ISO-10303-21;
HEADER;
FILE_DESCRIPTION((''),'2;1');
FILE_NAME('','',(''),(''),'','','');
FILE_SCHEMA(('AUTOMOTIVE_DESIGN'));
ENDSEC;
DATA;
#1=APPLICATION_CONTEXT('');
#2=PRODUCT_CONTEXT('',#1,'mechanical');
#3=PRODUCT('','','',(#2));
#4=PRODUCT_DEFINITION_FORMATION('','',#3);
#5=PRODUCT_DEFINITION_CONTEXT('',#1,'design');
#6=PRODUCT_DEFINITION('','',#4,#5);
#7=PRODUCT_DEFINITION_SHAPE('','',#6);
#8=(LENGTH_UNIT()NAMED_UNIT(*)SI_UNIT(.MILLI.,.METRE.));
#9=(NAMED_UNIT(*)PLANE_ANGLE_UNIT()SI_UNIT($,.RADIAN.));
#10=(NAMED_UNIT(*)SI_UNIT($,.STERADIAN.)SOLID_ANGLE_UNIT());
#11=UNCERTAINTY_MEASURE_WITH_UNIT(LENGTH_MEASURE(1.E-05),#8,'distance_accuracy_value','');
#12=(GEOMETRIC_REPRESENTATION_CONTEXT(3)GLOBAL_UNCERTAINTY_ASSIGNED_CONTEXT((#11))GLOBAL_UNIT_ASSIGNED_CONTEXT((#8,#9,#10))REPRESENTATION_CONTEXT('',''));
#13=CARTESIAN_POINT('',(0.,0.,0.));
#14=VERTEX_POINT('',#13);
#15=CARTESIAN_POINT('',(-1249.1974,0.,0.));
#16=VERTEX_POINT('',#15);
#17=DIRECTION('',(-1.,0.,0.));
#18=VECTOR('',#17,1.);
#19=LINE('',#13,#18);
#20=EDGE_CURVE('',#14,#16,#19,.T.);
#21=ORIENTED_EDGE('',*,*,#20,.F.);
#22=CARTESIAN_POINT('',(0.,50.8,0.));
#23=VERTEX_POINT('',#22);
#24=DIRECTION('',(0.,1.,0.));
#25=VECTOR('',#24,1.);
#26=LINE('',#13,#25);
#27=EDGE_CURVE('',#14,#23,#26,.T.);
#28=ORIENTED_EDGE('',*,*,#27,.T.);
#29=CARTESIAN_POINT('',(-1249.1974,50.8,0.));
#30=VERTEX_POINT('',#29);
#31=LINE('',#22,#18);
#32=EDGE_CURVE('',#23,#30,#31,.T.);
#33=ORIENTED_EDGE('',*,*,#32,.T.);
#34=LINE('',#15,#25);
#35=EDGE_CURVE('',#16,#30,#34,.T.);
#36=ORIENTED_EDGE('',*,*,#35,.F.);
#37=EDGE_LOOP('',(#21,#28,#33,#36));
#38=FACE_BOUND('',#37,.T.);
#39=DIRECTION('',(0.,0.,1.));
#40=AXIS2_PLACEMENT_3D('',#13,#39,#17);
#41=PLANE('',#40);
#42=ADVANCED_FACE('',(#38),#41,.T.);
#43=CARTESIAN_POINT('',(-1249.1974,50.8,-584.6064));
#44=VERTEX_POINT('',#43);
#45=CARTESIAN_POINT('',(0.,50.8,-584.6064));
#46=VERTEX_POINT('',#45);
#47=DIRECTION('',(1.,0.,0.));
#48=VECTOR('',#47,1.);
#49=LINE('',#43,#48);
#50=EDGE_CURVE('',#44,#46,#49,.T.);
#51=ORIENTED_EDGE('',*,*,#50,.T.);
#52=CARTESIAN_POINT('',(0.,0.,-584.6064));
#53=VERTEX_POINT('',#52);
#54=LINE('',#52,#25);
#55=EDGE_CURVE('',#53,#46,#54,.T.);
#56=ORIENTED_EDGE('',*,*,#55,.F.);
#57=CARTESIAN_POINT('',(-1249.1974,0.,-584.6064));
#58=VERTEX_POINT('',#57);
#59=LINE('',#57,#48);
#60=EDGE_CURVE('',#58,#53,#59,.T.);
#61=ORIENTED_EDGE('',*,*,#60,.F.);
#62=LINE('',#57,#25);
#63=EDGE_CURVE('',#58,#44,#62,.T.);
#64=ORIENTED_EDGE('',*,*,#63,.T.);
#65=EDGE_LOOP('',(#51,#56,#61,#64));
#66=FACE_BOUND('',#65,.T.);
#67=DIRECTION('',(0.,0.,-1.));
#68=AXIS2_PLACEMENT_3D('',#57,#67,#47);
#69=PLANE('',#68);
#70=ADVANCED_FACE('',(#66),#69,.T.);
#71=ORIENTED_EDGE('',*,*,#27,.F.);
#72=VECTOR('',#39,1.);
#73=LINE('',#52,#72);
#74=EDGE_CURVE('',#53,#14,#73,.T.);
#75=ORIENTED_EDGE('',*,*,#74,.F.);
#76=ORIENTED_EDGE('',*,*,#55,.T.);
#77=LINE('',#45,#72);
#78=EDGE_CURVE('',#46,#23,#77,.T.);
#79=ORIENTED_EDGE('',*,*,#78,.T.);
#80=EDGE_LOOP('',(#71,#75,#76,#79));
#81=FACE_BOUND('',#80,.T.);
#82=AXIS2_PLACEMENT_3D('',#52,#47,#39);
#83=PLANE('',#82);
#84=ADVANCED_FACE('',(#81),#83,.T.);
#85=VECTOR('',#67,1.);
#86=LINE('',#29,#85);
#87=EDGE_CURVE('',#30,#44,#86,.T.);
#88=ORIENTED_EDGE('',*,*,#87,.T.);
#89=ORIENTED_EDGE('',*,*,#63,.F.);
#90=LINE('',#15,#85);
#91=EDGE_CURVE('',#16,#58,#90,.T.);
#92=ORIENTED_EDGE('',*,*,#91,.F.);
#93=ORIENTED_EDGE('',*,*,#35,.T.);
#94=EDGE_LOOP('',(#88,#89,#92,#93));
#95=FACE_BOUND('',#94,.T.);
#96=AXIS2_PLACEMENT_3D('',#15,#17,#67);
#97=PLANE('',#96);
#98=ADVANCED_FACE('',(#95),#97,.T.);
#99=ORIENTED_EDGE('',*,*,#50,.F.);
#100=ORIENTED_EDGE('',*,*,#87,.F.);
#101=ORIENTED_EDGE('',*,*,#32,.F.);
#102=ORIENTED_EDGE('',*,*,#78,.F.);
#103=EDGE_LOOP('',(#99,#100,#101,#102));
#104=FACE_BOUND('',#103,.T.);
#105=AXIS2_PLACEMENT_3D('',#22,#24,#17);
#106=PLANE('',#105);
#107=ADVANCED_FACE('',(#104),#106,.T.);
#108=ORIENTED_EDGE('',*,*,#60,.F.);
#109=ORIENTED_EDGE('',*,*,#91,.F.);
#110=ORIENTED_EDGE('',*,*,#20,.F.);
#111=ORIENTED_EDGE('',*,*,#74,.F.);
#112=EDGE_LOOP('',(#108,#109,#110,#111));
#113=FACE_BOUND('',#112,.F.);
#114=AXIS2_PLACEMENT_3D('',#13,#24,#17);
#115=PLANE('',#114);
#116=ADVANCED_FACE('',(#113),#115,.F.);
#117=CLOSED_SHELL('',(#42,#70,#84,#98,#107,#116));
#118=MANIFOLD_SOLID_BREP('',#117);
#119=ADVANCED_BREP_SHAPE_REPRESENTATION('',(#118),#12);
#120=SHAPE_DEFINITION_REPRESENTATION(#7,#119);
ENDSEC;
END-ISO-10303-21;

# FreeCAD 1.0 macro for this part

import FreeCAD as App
import Part
import Sketcher

V = App.Vector
Q = App.Units.Quantity


def add_polygon(sketch, points):
    """Adds a closed chain of lines whose ends are joined by coincident constraints."""
    first, n = sketch.GeometryCount, len(points)
    for a, b in zip(points, points[1:] + points[:1]):
        sketch.addGeometry(Part.LineSegment(App.Vector(*a, 0), App.Vector(*b, 0)), False)
    for i in range(n):
        sketch.addConstraint(Sketcher.Constraint("Coincident", first + i, 2, first + (i + 1) % n, 1))

doc = App.newDocument("Part")
params = doc.addObject("Spreadsheet::Sheet", "Params")
for row, (alias, value) in enumerate([
    ("sketch1_width", "49.181 in"),
    ("sketch1_height", "23.016 in"),
    ("pad1_length", "2 in"),
], start=1):
    params.set(f"A{row}", alias)
    params.set(f"B{row}", "=" + value)
    params.setAlias(f"B{row}", alias)

body = doc.addObject("PartDesign::Body", "Body")

# Sketch on XZ plane
sketch1 = body.newObject("Sketcher::SketchObject", "Sketch")
sketch1.AttachmentSupport = (doc.getObject("XZ_Plane"), [""])
sketch1.MapMode = "FlatFace"
add_polygon(sketch1, [(-1249, 0), (0, 0), (0, -585), (-1249, -585)])  # lines 0-3
sketch1.addConstraint(Sketcher.Constraint("Horizontal", 0))
sketch1.addConstraint(Sketcher.Constraint("Vertical", 1))
sketch1.addConstraint(Sketcher.Constraint("Horizontal", 2))
sketch1.addConstraint(Sketcher.Constraint("Vertical", 3))
sketch1.addConstraint(Sketcher.Constraint("Coincident", 0, 2, -1, 1))
sketch1.addConstraint(Sketcher.Constraint("DistanceX", 0, 1, 0, 2, Q("49.181 in")))
sketch1.addConstraint(Sketcher.Constraint("DistanceY", 1, 2, 1, 1, Q("23.016 in")))
sketch1.setExpression("Constraints[9]", "Params.sketch1_width")
sketch1.setExpression("Constraints[10]", "Params.sketch1_height")
pad1 = body.newObject("PartDesign::Pad", "Pad")
pad1.Profile = sketch1
pad1.setExpression("Length", "Params.pad1_length")
pad1.Reversed = True

doc.recompute()
